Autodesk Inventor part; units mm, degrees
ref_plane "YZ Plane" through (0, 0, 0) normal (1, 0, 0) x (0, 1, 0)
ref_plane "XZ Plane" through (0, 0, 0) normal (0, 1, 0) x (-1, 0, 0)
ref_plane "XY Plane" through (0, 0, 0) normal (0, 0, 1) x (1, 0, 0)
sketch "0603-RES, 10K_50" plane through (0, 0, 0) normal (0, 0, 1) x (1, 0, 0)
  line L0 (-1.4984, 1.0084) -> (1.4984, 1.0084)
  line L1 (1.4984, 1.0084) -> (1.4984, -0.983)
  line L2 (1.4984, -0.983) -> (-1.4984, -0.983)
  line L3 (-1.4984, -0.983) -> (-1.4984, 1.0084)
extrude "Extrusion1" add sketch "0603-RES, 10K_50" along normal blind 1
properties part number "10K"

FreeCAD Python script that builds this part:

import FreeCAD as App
import Part
import Sketcher

V = App.Vector
Q = App.Units.Quantity


def add_polygon(sketch, points):
    """Adds a closed chain of lines whose ends are joined by coincident constraints."""
    first, n = sketch.GeometryCount, len(points)
    for a, b in zip(points, points[1:] + points[:1]):
        sketch.addGeometry(Part.LineSegment(App.Vector(*a, 0), App.Vector(*b, 0)), False)
    for i in range(n):
        sketch.addConstraint(Sketcher.Constraint("Coincident", first + i, 2, first + (i + 1) % n, 1))

doc = App.newDocument("Part")
params = doc.addObject("Spreadsheet::Sheet", "Params")
for row, (alias, value) in enumerate([
    ("pad1_length", "1 mm"),
], start=1):
    params.set(f"A{row}", alias)
    params.set(f"B{row}", "=" + value)
    params.setAlias(f"B{row}", alias)

body = doc.addObject("PartDesign::Body", "Body")

sketch1 = body.newObject("Sketcher::SketchObject", "Sketch")
sketch1.AttachmentSupport = (doc.getObject("XY_Plane"), [""])
sketch1.MapMode = "FlatFace"
add_polygon(sketch1, [(1.4984, 1.0084), (-1.4984, 1.0084), (-1.4984, -0.983), (1.4984, -0.983)])
sketch1.addConstraint([
    Sketcher.Constraint("Horizontal", 0),
    Sketcher.Constraint("Vertical", 1),
    Sketcher.Constraint("Horizontal", 2),
    Sketcher.Constraint("Vertical", 3),
    Sketcher.Constraint("DistanceX", 0, 2, 0, 1, Q("2.9968 mm")),
    Sketcher.Constraint("DistanceY", 1, 2, 1, 1, Q("1.9914 mm")),
    Sketcher.Constraint("DistanceY", 1, 2, -1, 1, Q("0.983 mm")),
    Sketcher.Constraint("DistanceX", 0, 2, -1, 1, Q("1.4984 mm")),
])
pad1 = body.newObject("PartDesign::Pad", "Pad")
pad1.Profile = sketch1
pad1.setExpression("Length", "Params.pad1_length")

doc.recompute()
